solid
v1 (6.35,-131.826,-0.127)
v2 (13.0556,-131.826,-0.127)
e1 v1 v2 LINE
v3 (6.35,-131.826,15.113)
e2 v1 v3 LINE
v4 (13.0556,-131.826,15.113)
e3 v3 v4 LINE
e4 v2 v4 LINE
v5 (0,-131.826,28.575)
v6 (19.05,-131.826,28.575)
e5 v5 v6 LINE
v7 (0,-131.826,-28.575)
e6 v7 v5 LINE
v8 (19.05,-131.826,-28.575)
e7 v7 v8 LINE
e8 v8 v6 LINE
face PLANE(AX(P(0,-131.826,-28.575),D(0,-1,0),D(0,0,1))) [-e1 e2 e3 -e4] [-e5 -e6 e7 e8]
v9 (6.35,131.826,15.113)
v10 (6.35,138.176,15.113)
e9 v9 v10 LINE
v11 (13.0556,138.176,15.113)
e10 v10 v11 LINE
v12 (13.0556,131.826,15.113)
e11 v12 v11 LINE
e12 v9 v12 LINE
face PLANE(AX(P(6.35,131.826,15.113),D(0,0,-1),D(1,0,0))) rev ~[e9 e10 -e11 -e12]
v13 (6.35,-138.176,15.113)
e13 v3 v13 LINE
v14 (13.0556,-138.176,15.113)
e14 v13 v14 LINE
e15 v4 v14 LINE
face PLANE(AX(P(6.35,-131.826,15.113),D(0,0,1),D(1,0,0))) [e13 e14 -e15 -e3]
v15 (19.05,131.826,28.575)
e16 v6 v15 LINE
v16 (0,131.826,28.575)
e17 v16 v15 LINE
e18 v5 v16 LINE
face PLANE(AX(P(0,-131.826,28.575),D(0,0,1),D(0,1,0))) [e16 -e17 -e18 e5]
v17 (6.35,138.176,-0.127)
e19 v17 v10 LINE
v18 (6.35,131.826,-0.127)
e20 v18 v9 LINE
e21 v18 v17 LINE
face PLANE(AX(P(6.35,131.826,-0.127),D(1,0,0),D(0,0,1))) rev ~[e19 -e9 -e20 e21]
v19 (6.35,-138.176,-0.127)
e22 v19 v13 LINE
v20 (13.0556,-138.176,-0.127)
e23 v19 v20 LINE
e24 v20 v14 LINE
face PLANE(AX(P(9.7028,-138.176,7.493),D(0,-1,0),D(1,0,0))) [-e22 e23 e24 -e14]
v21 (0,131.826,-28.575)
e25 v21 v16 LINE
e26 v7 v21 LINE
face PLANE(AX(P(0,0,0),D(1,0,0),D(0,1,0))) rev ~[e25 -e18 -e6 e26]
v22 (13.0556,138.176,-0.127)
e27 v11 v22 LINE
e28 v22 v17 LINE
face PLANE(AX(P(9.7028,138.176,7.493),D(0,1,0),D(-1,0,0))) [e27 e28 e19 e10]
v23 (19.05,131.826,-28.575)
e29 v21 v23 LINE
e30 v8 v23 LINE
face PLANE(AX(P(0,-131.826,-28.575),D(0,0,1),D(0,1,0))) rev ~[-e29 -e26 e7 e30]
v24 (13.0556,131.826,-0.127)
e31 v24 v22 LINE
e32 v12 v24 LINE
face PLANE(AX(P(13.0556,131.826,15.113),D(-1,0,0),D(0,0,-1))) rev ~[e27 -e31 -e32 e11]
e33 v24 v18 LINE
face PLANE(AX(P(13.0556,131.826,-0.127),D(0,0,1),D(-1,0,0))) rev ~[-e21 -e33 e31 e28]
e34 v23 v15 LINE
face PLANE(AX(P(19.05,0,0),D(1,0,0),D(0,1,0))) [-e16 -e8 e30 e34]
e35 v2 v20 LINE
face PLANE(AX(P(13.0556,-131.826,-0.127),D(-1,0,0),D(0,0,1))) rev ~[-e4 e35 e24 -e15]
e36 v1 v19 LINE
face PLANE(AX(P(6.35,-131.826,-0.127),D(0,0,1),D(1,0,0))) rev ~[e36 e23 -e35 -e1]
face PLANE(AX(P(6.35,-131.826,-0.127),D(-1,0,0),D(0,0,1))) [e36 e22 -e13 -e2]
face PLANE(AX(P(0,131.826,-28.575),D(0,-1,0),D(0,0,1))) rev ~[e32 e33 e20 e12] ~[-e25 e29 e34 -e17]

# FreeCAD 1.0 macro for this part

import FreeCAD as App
import Part
import Sketcher
Q = App.Units.Quantity

doc = App.newDocument("Part")
body = doc.addObject("PartDesign::Body", "Body")

# Sketch on YZ plane
sketch1 = body.newObject("Sketcher::SketchObject", "Sketch")
sketch1.AttachmentSupport = (doc.getObject("YZ_Plane"), [""])
sketch1.MapMode = "FlatFace"
sketch1.addGeometry([
    Part.LineSegment(App.Vector(-132, 29, 0), App.Vector(-132, -29, 0)),
    Part.LineSegment(App.Vector(-132, -29, 0), App.Vector(132, -29, 0)),
    Part.LineSegment(App.Vector(132, -29, 0), App.Vector(132, 29, 0)),
    Part.LineSegment(App.Vector(132, 29, 0), App.Vector(-132, 29, 0)),
], False)
sketch1.addConstraint([
    Sketcher.Constraint("Coincident", 0, 2, 1, 1),
    Sketcher.Constraint("Coincident", 1, 2, 2, 1),
    Sketcher.Constraint("Coincident", 2, 2, 3, 1),
    Sketcher.Constraint("Coincident", 3, 2, 0, 1),
    Sketcher.Constraint("Vertical", 0),
    Sketcher.Constraint("Horizontal", 1),
    Sketcher.Constraint("Vertical", 2),
    Sketcher.Constraint("Horizontal", 3),
    Sketcher.Constraint("Symmetric", 0, 2, 2, 2, -1, 1),
    Sketcher.Constraint("DistanceX", 1, 1, 1, 2, Q("10.38 in")),
    Sketcher.Constraint("DistanceY", 0, 2, 0, 1, Q("2.25 in")),
])
pad1 = body.newObject("PartDesign::Pad", "Pad")
pad1.Profile = sketch1
pad1.Length = Q("0.75 in")

# Sketch on XZ plane
sketch2 = body.newObject("Sketcher::SketchObject", "Sketch001")
sketch2.AttachmentSupport = (doc.getObject("XZ_Plane"), [""])
sketch2.MapMode = "FlatFace"
sketch2.AttachmentOffset = App.Placement(App.Vector(0, 0, 5.19 * 25.4), App.Rotation())
sketch2.addGeometry([
    Part.LineSegment(App.Vector(6, 15, 0), App.Vector(6, 0, 0)),
    Part.LineSegment(App.Vector(6, 0, 0), App.Vector(13, 0, 0)),
    Part.LineSegment(App.Vector(13, 0, 0), App.Vector(13, 15, 0)),
    Part.LineSegment(App.Vector(13, 15, 0), App.Vector(6, 15, 0)),
], False)
sketch2.addConstraint([
    Sketcher.Constraint("Coincident", 0, 2, 1, 1),
    Sketcher.Constraint("Coincident", 1, 2, 2, 1),
    Sketcher.Constraint("Coincident", 2, 2, 3, 1),
    Sketcher.Constraint("Coincident", 3, 2, 0, 1),
    Sketcher.Constraint("Vertical", 0),
    Sketcher.Constraint("Horizontal", 1),
    Sketcher.Constraint("Vertical", 2),
    Sketcher.Constraint("Horizontal", 3),
    Sketcher.Constraint("DistanceY", 0, 2, 0, 1, Q("0.6 in")),
    Sketcher.Constraint("DistanceX", 1, 1, 1, 2, Q("0.264 in")),
    Sketcher.Constraint("DistanceX", -1, 1, 0, 2, Q("0.25 in")),
    Sketcher.Constraint("DistanceY", 0, 2, -1, 1, Q("0.005 in")),
])
pad2 = body.newObject("PartDesign::Pad", "Pad001")
pad2.Profile = sketch2
pad2.Length = Q("0.25 in")

# Sketch on XZ plane
sketch3 = body.newObject("Sketcher::SketchObject", "Sketch002")
sketch3.AttachmentSupport = (doc.getObject("XZ_Plane"), [""])
sketch3.MapMode = "FlatFace"
sketch3.AttachmentOffset = App.Placement(App.Vector(0, 0, -5.19 * 25.4), App.Rotation())
sketch3.addGeometry([
    Part.LineSegment(App.Vector(6, 15, 0), App.Vector(13, 15, 0)),
    Part.LineSegment(App.Vector(13, 15, 0), App.Vector(13, 0, 0)),
    Part.LineSegment(App.Vector(13, 0, 0), App.Vector(6, 0, 0)),
    Part.LineSegment(App.Vector(6, 0, 0), App.Vector(6, 15, 0)),
], False)
sketch3.addConstraint([
    Sketcher.Constraint("Coincident", 0, 2, 1, 1),
    Sketcher.Constraint("Coincident", 1, 2, 2, 1),
    Sketcher.Constraint("Coincident", 2, 2, 3, 1),
    Sketcher.Constraint("Coincident", 3, 2, 0, 1),
    Sketcher.Constraint("Horizontal", 0),
    Sketcher.Constraint("Vertical", 1),
    Sketcher.Constraint("Horizontal", 2),
    Sketcher.Constraint("Vertical", 3),
    Sketcher.Constraint("DistanceY", 1, 2, 1, 1, Q("0.6 in")),
    Sketcher.Constraint("DistanceX", 0, 1, 0, 2, Q("0.264 in")),
    Sketcher.Constraint("DistanceX", -1, 1, 2, 2, Q("0.25 in")),
    Sketcher.Constraint("DistanceY", -1, 1, 0, 2, Q("0.595 in")),
])
pad3 = body.newObject("PartDesign::Pad", "Pad002")
pad3.Profile = sketch3
pad3.Length = Q("0.25 in")
pad3.Reversed = True

doc.recompute()
